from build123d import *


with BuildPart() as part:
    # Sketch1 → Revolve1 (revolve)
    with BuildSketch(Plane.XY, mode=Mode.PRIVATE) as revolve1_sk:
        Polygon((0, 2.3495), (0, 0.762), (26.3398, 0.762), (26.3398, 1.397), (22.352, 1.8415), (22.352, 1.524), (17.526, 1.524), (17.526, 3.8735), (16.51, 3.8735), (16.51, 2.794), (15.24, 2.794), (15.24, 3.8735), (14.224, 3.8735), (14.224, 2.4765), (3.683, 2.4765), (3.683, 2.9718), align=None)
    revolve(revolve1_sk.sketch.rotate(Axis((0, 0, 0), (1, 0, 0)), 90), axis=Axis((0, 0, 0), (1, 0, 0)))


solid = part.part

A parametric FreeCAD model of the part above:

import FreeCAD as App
import Part
import Sketcher
from FreeCAD import Vector
Q = App.Units.Quantity

doc = App.newDocument("Part")
body = doc.addObject("PartDesign::Body", "Body")

# Sketch on XY plane
sketch1 = body.newObject("Sketcher::SketchObject", "Sketch")
sketch1.AttachmentSupport = (doc.getObject("XY_Plane"), [""])
sketch1.MapMode = "FlatFace"
sketch1.addGeometry([
    Part.LineSegment(Vector(0, 2.35, 0), Vector(0, 0.76, 0)),  # 0
    Part.LineSegment(Vector(0, 0.76, 0), Vector(26.34, 0.76, 0)),  # 1
    Part.LineSegment(Vector(26.34, 0.76, 0), Vector(26.34, 1.4, 0)),  # 2
    Part.LineSegment(Vector(26.34, 1.4, 0), Vector(22.35, 1.84, 0)),  # 3
    Part.LineSegment(Vector(22.35, 1.84, 0), Vector(22.35, 1.52, 0)),  # 4
    Part.LineSegment(Vector(22.35, 1.52, 0), Vector(17.53, 1.52, 0)),  # 5
    Part.LineSegment(Vector(17.53, 1.52, 0), Vector(17.53, 3.87, 0)),  # 6
    Part.LineSegment(Vector(17.53, 3.87, 0), Vector(16.51, 3.87, 0)),  # 7
    Part.LineSegment(Vector(16.51, 3.87, 0), Vector(16.51, 2.79, 0)),  # 8
    Part.LineSegment(Vector(16.51, 2.79, 0), Vector(15.24, 2.79, 0)),  # 9
    Part.LineSegment(Vector(15.24, 2.79, 0), Vector(15.24, 3.87, 0)),  # 10
    Part.LineSegment(Vector(15.24, 3.87, 0), Vector(14.22, 3.87, 0)),  # 11
    Part.LineSegment(Vector(14.22, 3.87, 0), Vector(14.22, 2.48, 0)),  # 12
    Part.LineSegment(Vector(14.22, 2.48, 0), Vector(3.68, 2.48, 0)),  # 13
    Part.LineSegment(Vector(3.68, 2.48, 0), Vector(3.68, 2.97, 0)),  # 14
    Part.LineSegment(Vector(3.68, 2.97, 0), Vector(0, 2.35, 0)),  # 15
], False)
sketch1.addConstraint([
    Sketcher.Constraint("Coincident", 0, 2, 1, 1),
    Sketcher.Constraint("Coincident", 1, 2, 2, 1),
    Sketcher.Constraint("Coincident", 2, 2, 3, 1),
    Sketcher.Constraint("Coincident", 3, 2, 4, 1),
    Sketcher.Constraint("Coincident", 4, 2, 5, 1),
    Sketcher.Constraint("Coincident", 5, 2, 6, 1),
    Sketcher.Constraint("Coincident", 6, 2, 7, 1),
    Sketcher.Constraint("Coincident", 7, 2, 8, 1),
    Sketcher.Constraint("Coincident", 8, 2, 9, 1),
    Sketcher.Constraint("Coincident", 9, 2, 10, 1),
    Sketcher.Constraint("Coincident", 10, 2, 11, 1),
    Sketcher.Constraint("Coincident", 11, 2, 12, 1),
    Sketcher.Constraint("Coincident", 12, 2, 13, 1),
    Sketcher.Constraint("Coincident", 13, 2, 14, 1),
    Sketcher.Constraint("Coincident", 14, 2, 15, 1),
    Sketcher.Constraint("Coincident", 15, 2, 0, 1),
    Sketcher.Constraint("Vertical", 0),
    Sketcher.Constraint("Horizontal", 1),
    Sketcher.Constraint("Vertical", 2),
    Sketcher.Constraint("Vertical", 4),
    Sketcher.Constraint("Horizontal", 5),
    Sketcher.Constraint("Vertical", 6),
    Sketcher.Constraint("Horizontal", 7),
    Sketcher.Constraint("Vertical", 8),
    Sketcher.Constraint("Horizontal", 9),
    Sketcher.Constraint("Vertical", 10),
    Sketcher.Constraint("Horizontal", 11),
    Sketcher.Constraint("Vertical", 12),
    Sketcher.Constraint("Horizontal", 13),
    Sketcher.Constraint("Vertical", 14),
    Sketcher.Constraint("PointOnObject", 0, 2, -2),
    Sketcher.Constraint("Horizontal", 7, 2, 10, 2),
    Sketcher.Constraint("Equal", 7, 11),
    Sketcher.Constraint("DistanceX", 5, 2, 5, 1, Q("0.19 in")),
    Sketcher.Constraint("DistanceX", 7, 2, 7, 1, Q("0.04 in")),
    Sketcher.Constraint("DistanceX", 9, 2, 9, 1, Q("0.05 in")),
    Sketcher.Constraint("DistanceX", -1, 1, 9, 2, Q("0.6 in")),
    Sketcher.Constraint("DistanceX", 1, 1, 1, 2, Q("1.037 in")),
    Sketcher.Constraint("DistanceX", 13, 2, 13, 1, Q("0.415 in")),
    Sketcher.Constraint("DistanceY", 0, 2, 0, 1, Q("0.0625 in")),
    Sketcher.Constraint("DistanceY", 2, 1, 2, 2, Q("0.025 in")),
    Sketcher.Constraint("DistanceY", 12, 2, 12, 1, Q("0.055 in")),
    Sketcher.Constraint("DistanceY", -1, 1, 0, 2, Q("0.03 in")),
    Sketcher.Constraint("DistanceY", -1, 1, 4, 2, Q("0.06 in")),
    Sketcher.Constraint("DistanceY", -1, 1, 8, 2, Q("0.11 in")),
    Sketcher.Constraint("DistanceY", 3, 2, 6, 2, Q("0.08 in")),
    Sketcher.Constraint("DistanceY", 15, 2, 11, 2, Q("0.06 in")),
    Sketcher.Constraint("DistanceY", 14, 1, 14, 2, Q("0.0195 in")),
])
revolution = body.newObject("PartDesign::Revolution", "Revolution")
revolution.Profile = sketch1
revolution.ReferenceAxis = (sketch1, ["H_Axis"])
revolution.Angle = 360

doc.recompute()
